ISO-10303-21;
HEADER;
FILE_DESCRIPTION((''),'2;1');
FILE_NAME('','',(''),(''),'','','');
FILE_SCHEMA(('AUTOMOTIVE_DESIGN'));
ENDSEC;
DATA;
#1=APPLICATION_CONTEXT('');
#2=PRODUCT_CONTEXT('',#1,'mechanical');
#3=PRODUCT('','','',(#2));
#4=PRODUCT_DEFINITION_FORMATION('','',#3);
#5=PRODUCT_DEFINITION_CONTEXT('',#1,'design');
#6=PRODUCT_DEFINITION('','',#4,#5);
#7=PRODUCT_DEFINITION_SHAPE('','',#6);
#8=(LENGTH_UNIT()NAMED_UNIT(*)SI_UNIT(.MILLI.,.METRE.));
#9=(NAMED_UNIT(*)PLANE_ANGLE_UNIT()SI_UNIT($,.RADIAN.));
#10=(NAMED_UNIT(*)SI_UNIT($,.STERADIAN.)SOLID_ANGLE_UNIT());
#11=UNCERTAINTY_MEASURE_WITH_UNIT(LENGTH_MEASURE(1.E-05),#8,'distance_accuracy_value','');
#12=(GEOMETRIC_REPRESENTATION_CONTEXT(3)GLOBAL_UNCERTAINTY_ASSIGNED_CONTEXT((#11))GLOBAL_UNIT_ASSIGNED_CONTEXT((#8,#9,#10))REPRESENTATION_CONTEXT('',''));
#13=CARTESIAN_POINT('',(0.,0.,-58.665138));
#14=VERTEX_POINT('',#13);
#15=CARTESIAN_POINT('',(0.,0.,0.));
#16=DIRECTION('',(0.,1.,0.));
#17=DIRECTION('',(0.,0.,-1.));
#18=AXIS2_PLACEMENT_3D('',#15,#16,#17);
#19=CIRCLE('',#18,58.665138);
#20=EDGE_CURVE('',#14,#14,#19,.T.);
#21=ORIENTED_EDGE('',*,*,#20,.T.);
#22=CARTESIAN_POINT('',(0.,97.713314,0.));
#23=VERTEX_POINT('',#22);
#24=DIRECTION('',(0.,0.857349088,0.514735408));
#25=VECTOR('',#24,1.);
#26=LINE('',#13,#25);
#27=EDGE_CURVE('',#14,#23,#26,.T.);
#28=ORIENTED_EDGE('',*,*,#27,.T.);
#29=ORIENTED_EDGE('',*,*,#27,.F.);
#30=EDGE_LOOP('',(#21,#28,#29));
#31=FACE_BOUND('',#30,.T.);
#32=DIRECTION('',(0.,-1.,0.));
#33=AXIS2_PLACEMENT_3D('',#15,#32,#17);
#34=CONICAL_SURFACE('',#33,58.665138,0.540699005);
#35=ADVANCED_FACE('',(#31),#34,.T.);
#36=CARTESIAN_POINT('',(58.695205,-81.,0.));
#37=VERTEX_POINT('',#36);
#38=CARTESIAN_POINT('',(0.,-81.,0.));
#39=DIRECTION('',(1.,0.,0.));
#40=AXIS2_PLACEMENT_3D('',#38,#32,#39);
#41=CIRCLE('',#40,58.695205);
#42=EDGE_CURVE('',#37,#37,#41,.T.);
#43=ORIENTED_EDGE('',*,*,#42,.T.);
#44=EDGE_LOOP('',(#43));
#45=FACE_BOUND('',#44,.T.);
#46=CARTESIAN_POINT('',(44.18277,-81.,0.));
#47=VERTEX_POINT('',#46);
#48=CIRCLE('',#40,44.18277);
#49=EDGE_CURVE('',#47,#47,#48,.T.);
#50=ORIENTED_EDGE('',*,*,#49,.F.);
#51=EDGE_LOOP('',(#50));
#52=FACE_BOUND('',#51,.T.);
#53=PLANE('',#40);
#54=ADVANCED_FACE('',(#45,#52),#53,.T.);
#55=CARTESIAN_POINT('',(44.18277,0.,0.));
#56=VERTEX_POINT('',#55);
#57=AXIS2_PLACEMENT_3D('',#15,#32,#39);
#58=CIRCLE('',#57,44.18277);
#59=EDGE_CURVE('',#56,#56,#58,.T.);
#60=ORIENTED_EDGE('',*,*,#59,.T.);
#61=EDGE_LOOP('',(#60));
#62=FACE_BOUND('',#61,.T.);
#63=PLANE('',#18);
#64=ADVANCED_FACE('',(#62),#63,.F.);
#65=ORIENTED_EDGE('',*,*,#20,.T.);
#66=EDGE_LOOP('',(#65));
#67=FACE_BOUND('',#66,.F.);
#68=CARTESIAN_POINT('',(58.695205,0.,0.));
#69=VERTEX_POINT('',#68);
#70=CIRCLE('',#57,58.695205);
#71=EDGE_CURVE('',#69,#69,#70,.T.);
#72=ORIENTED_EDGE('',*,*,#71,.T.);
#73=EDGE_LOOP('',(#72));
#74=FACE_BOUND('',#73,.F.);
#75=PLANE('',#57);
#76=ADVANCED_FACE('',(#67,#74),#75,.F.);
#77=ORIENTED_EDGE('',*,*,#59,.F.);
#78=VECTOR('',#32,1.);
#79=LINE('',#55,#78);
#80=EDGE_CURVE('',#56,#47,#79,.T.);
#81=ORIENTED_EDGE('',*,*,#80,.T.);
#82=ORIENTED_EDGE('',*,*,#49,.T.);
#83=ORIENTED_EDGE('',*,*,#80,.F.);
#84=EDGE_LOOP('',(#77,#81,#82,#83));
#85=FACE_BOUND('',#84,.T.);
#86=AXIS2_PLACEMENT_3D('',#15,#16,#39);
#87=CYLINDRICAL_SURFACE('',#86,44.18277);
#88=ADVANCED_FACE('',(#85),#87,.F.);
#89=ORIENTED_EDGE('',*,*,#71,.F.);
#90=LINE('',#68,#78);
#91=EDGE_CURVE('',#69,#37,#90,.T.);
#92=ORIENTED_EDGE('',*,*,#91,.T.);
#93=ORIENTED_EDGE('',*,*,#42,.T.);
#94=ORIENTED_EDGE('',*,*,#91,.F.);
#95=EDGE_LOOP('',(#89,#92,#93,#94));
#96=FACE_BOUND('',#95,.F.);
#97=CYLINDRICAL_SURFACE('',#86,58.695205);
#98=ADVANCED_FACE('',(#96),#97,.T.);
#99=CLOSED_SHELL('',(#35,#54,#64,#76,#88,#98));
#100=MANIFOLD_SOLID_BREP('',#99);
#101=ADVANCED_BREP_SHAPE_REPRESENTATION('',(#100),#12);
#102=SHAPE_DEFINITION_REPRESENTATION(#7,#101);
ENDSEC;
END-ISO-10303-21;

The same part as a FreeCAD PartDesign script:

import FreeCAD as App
import Part
import Sketcher

V = App.Vector


def add_polygon(sketch, points):
    """Adds a closed chain of lines whose ends are joined by coincident constraints."""
    first, n = sketch.GeometryCount, len(points)
    for a, b in zip(points, points[1:] + points[:1]):
        sketch.addGeometry(Part.LineSegment(App.Vector(*a, 0), App.Vector(*b, 0)), False)
    for i in range(n):
        sketch.addConstraint(Sketcher.Constraint("Coincident", first + i, 2, first + (i + 1) % n, 1))

doc = App.newDocument("Part")
body = doc.addObject("PartDesign::Body", "Body")

sketch1 = body.newObject("Sketcher::SketchObject", "Sketch")
sketch1.AttachmentSupport = (doc.getObject("XZ_Plane"), [""])
sketch1.MapMode = "FlatFace"
sketch1.addGeometry(Part.Circle(V(0, 0, 0), V(0, 0, 1), 59), False)
sketch1.addGeometry(Part.Circle(V(0, 0, 0), V(0, 0, 1), 44), False)
sketch1.addConstraint(Sketcher.Constraint("Coincident", 0, 3, -1, 1))
sketch1.addConstraint(Sketcher.Constraint("Coincident", 1, 3, -1, 1))
sketch1.addConstraint(Sketcher.Constraint("Diameter", 0, 117.39041))
sketch1.addConstraint(Sketcher.Constraint("Diameter", 1, 88.36554))
pad1 = body.newObject("PartDesign::Pad", "Pad")
pad1.Profile = sketch1
pad1.Length = 81

sketch2 = body.newObject("Sketcher::SketchObject", "Sketch001")
sketch2.AttachmentSupport = (doc.getObject("YZ_Plane"), [""])
sketch2.MapMode = "FlatFace"
add_polygon(sketch2, [(98, 0), (0, 0), (0, -59)])
sketch2.addConstraint(Sketcher.Constraint("Horizontal", 0))
sketch2.addConstraint(Sketcher.Constraint("Vertical", 1))
sketch2.addConstraint(Sketcher.Constraint("Coincident", 0, 2, -1, 1))
sketch2.addConstraint(Sketcher.Constraint("DistanceX", 0, 2, 0, 1, 97.713314))
sketch2.addConstraint(Sketcher.Constraint("DistanceY", 1, 2, 1, 1, 58.665138))
revolution = body.newObject("PartDesign::Revolution", "Revolution")
revolution.Profile = sketch2
revolution.ReferenceAxis = (sketch2, ["H_Axis"])
revolution.Angle = 360

doc.recompute()
